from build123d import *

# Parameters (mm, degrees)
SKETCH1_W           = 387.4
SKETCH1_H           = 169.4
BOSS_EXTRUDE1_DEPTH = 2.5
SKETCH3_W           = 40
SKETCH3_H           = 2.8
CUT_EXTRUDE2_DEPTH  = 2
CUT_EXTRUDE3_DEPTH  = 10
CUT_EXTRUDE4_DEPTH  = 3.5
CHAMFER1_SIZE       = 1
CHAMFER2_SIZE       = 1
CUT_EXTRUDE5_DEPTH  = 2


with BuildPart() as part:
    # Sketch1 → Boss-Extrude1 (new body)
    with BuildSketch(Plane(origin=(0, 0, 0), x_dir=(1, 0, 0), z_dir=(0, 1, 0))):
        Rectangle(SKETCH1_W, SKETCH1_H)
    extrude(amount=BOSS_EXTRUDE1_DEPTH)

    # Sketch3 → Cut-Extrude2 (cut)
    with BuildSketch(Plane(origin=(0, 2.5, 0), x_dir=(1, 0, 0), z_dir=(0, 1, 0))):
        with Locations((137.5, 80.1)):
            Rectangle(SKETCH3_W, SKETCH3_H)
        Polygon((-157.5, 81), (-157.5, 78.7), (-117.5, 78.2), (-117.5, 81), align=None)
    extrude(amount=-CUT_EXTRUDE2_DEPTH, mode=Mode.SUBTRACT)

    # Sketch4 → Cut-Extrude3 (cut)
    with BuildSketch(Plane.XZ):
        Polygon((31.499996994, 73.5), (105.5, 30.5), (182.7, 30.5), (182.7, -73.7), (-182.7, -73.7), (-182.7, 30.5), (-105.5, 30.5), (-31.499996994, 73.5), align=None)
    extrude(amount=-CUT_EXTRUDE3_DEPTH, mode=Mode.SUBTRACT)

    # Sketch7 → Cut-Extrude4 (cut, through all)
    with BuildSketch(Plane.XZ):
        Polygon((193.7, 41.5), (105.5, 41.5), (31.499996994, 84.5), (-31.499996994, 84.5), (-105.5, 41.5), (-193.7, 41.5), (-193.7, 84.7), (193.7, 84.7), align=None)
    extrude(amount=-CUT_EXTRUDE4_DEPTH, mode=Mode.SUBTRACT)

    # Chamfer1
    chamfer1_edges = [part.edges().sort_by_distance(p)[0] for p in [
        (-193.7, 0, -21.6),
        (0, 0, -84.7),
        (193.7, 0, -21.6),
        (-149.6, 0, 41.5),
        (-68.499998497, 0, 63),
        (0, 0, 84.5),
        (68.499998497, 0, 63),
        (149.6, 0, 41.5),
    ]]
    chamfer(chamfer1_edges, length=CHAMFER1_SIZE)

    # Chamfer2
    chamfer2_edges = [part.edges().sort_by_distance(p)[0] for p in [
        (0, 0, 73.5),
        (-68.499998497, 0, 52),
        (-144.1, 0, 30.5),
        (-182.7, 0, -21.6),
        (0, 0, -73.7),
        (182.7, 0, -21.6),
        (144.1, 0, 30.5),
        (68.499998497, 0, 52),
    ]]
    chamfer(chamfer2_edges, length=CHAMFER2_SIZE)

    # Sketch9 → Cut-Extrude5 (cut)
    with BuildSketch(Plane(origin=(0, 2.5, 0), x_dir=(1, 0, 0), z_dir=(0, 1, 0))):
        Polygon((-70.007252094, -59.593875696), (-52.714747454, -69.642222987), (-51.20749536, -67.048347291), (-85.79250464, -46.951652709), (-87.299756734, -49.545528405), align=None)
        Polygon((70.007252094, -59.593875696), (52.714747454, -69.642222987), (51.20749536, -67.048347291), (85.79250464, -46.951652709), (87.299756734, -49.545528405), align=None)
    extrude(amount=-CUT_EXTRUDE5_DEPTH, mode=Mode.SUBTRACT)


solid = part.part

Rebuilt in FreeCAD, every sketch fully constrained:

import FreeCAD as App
import Part
import Sketcher
Q = App.Units.Quantity


def edges_at(feature, points):
    """Names of the edges that pass closest to the given points."""
    edges = feature.Shape.Edges
    near = lambda p: min(range(len(edges)), key=lambda i: edges[i].distToShape(Part.Vertex(*p))[0])
    return sorted({f"Edge{near(p) + 1}" for p in points})

doc = App.newDocument("Part")
body = doc.addObject("PartDesign::Body", "Body")

# Sketch on XZ plane
sketch1 = doc.addObject("Sketcher::SketchObject", "Sketch")
body.addObject(sketch1)
sketch1.AttachmentSupport = (doc.XZ_Plane, [""])
sketch1.MapMode = "FlatFace"
sketch1.addGeometry(Part.LineSegment(App.Vector(-194, -85, 0), App.Vector(-194, 85, 0)), False)
sketch1.addGeometry(Part.LineSegment(App.Vector(-194, 85, 0), App.Vector(194, 85, 0)), False)
sketch1.addGeometry(Part.LineSegment(App.Vector(194, 85, 0), App.Vector(194, -85, 0)), False)
sketch1.addGeometry(Part.LineSegment(App.Vector(194, -85, 0), App.Vector(-194, -85, 0)), False)
sketch1.addConstraint(Sketcher.Constraint("Coincident", 0, 2, 1, 1))
sketch1.addConstraint(Sketcher.Constraint("Coincident", 1, 2, 2, 1))
sketch1.addConstraint(Sketcher.Constraint("Coincident", 2, 2, 3, 1))
sketch1.addConstraint(Sketcher.Constraint("Coincident", 3, 2, 0, 1))
sketch1.addConstraint(Sketcher.Constraint("Vertical", 0))
sketch1.addConstraint(Sketcher.Constraint("Horizontal", 1))
sketch1.addConstraint(Sketcher.Constraint("Vertical", 2))
sketch1.addConstraint(Sketcher.Constraint("Horizontal", 3))
sketch1.addConstraint(Sketcher.Constraint("Symmetric", 0, 2, 2, 2, -1, 1))
sketch1.addConstraint(Sketcher.Constraint("DistanceX", 1, 1, 1, 2, Q("387.4 mm")))
sketch1.addConstraint(Sketcher.Constraint("DistanceY", 0, 1, 0, 2, Q("169.4 mm")))
pad1 = doc.addObject("PartDesign::Pad", "Pad")
body.addObject(pad1)
pad1.Profile = sketch1
pad1.Length = 2.5
pad1.Reversed = True

# Sketch on XZ plane
sketch2 = doc.addObject("Sketcher::SketchObject", "Sketch001")
body.addObject(sketch2)
sketch2.AttachmentSupport = (doc.XZ_Plane, [""])
sketch2.MapMode = "FlatFace"
sketch2.AttachmentOffset = App.Placement(App.Vector(0, 0, -2.5), App.Rotation())
sketch2.addGeometry(Part.LineSegment(App.Vector(117.5, -81.5, 0), App.Vector(117.5, -78.7, 0)), False)
sketch2.addGeometry(Part.LineSegment(App.Vector(117.5, -78.7, 0), App.Vector(157.5, -78.7, 0)), False)
sketch2.addGeometry(Part.LineSegment(App.Vector(157.5, -78.7, 0), App.Vector(157.5, -81.5, 0)), False)
sketch2.addGeometry(Part.LineSegment(App.Vector(157.5, -81.5, 0), App.Vector(117.5, -81.5, 0)), False)
sketch2.addGeometry(Part.LineSegment(App.Vector(-157.5, -81, 0), App.Vector(-157.5, -78.7, 0)), False)
sketch2.addGeometry(Part.LineSegment(App.Vector(-157.5, -78.7, 0), App.Vector(-117.5, -78.2, 0)), False)
sketch2.addGeometry(Part.LineSegment(App.Vector(-117.5, -78.2, 0), App.Vector(-117.5, -81, 0)), False)
sketch2.addGeometry(Part.LineSegment(App.Vector(-117.5, -81, 0), App.Vector(-157.5, -81, 0)), False)
sketch2.addConstraint(Sketcher.Constraint("Coincident", 0, 2, 1, 1))
sketch2.addConstraint(Sketcher.Constraint("Coincident", 1, 2, 2, 1))
sketch2.addConstraint(Sketcher.Constraint("Coincident", 2, 2, 3, 1))
sketch2.addConstraint(Sketcher.Constraint("Coincident", 3, 2, 0, 1))
sketch2.addConstraint(Sketcher.Constraint("Coincident", 4, 2, 5, 1))
sketch2.addConstraint(Sketcher.Constraint("Coincident", 5, 2, 6, 1))
sketch2.addConstraint(Sketcher.Constraint("Coincident", 6, 2, 7, 1))
sketch2.addConstraint(Sketcher.Constraint("Coincident", 7, 2, 4, 1))
sketch2.addConstraint(Sketcher.Constraint("Vertical", 0))
sketch2.addConstraint(Sketcher.Constraint("Horizontal", 1))
sketch2.addConstraint(Sketcher.Constraint("Vertical", 2))
sketch2.addConstraint(Sketcher.Constraint("Horizontal", 3))
sketch2.addConstraint(Sketcher.Constraint("Vertical", 4))
sketch2.addConstraint(Sketcher.Constraint("Vertical", 6))
sketch2.addConstraint(Sketcher.Constraint("Horizontal", 7))
sketch2.addConstraint(Sketcher.Constraint("Symmetric", 1, 2, 4, 2, -2))
sketch2.addConstraint(Sketcher.Constraint("Equal", 3, 7))
sketch2.addConstraint(Sketcher.Constraint("Equal", 2, 6))
sketch2.addConstraint(Sketcher.Constraint("DistanceX", 1, 1, 1, 2, Q("40 mm")))
sketch2.addConstraint(Sketcher.Constraint("DistanceY", 0, 1, 0, 2, Q("2.8 mm")))
sketch2.addConstraint(Sketcher.Constraint("DistanceY", 4, 1, 4, 2, Q("2.3 mm")))
sketch2.addConstraint(Sketcher.Constraint("DistanceY", 6, 2, -1, 1, Q("81 mm")))
sketch2.addConstraint(Sketcher.Constraint("DistanceX", 4, 2, 0, 2, Q("275 mm")))
pocket1 = doc.addObject("PartDesign::Pocket", "Pocket")
body.addObject(pocket1)
pocket1.Profile = sketch2
pocket1.Length = 2
pocket1.Reversed = True

# Sketch on XZ plane
sketch3 = doc.addObject("Sketcher::SketchObject", "Sketch002")
body.addObject(sketch3)
sketch3.AttachmentSupport = (doc.XZ_Plane, [""])
sketch3.MapMode = "FlatFace"
sketch3.addGeometry(Part.LineSegment(App.Vector(106, 30, 0), App.Vector(31, 74, 0)), False)
sketch3.addGeometry(Part.LineSegment(App.Vector(31, 74, 0), App.Vector(-31, 74, 0)), False)
sketch3.addGeometry(Part.LineSegment(App.Vector(-31, 74, 0), App.Vector(-106, 30, 0)), False)
sketch3.addGeometry(Part.LineSegment(App.Vector(-106, 30, 0), App.Vector(-183, 30, 0)), False)
sketch3.addGeometry(Part.LineSegment(App.Vector(-183, 30, 0), App.Vector(-183, -74, 0)), False)
sketch3.addGeometry(Part.LineSegment(App.Vector(-183, -74, 0), App.Vector(183, -74, 0)), False)
sketch3.addGeometry(Part.LineSegment(App.Vector(183, -74, 0), App.Vector(183, 30, 0)), False)
sketch3.addGeometry(Part.LineSegment(App.Vector(183, 30, 0), App.Vector(106, 30, 0)), False)
sketch3.addConstraint(Sketcher.Constraint("Coincident", 0, 2, 1, 1))
sketch3.addConstraint(Sketcher.Constraint("Coincident", 1, 2, 2, 1))
sketch3.addConstraint(Sketcher.Constraint("Coincident", 2, 2, 3, 1))
sketch3.addConstraint(Sketcher.Constraint("Coincident", 3, 2, 4, 1))
sketch3.addConstraint(Sketcher.Constraint("Coincident", 4, 2, 5, 1))
sketch3.addConstraint(Sketcher.Constraint("Coincident", 5, 2, 6, 1))
sketch3.addConstraint(Sketcher.Constraint("Coincident", 6, 2, 7, 1))
sketch3.addConstraint(Sketcher.Constraint("Coincident", 7, 2, 0, 1))
sketch3.addConstraint(Sketcher.Constraint("Horizontal", 1))
sketch3.addConstraint(Sketcher.Constraint("Horizontal", 3))
sketch3.addConstraint(Sketcher.Constraint("Vertical", 4))
sketch3.addConstraint(Sketcher.Constraint("Horizontal", 5))
sketch3.addConstraint(Sketcher.Constraint("Vertical", 6))
sketch3.addConstraint(Sketcher.Constraint("Horizontal", 7))
sketch3.addConstraint(Sketcher.Constraint("Symmetric", 3, 2, 6, 2, -2))
sketch3.addConstraint(Sketcher.Constraint("Equal", 3, 7))
sketch3.addConstraint(Sketcher.Constraint("Equal", 0, 2))
sketch3.addConstraint(Sketcher.Constraint("DistanceX", 3, 2, 3, 1, Q("77.2 mm")))
sketch3.addConstraint(Sketcher.Constraint("DistanceX", 5, 1, 5, 2, Q("365.4 mm")))
sketch3.addConstraint(Sketcher.Constraint("DistanceY", 4, 2, 4, 1, Q("104.2 mm")))
sketch3.addConstraint(Sketcher.Constraint("DistanceY", 2, 2, 1, 2, Q("43 mm")))
sketch3.addConstraint(Sketcher.Constraint("DistanceY", -1, 1, 0, 2, Q("73.5 mm")))
sketch3.addConstraint(Sketcher.Constraint("DistanceX", 1, 2, 1, 1, Q("62.999994 mm")))
pocket2 = doc.addObject("PartDesign::Pocket", "Pocket001")
body.addObject(pocket2)
pocket2.Profile = sketch3
pocket2.Length = 10

# Sketch on XZ plane
sketch4 = doc.addObject("Sketcher::SketchObject", "Sketch003")
body.addObject(sketch4)
sketch4.AttachmentSupport = (doc.XZ_Plane, [""])
sketch4.MapMode = "FlatFace"
sketch4.addGeometry(Part.LineSegment(App.Vector(106, 42, 0), App.Vector(194, 42, 0)), False)
sketch4.addGeometry(Part.LineSegment(App.Vector(194, 42, 0), App.Vector(194, 85, 0)), False)
sketch4.addGeometry(Part.LineSegment(App.Vector(194, 85, 0), App.Vector(-194, 85, 0)), False)
sketch4.addGeometry(Part.LineSegment(App.Vector(-194, 85, 0), App.Vector(-194, 42, 0)), False)
sketch4.addGeometry(Part.LineSegment(App.Vector(-194, 42, 0), App.Vector(-106, 42, 0)), False)
sketch4.addGeometry(Part.LineSegment(App.Vector(-106, 42, 0), App.Vector(-31, 84, 0)), False)
sketch4.addGeometry(Part.LineSegment(App.Vector(-31, 84, 0), App.Vector(31, 84, 0)), False)
sketch4.addGeometry(Part.LineSegment(App.Vector(31, 84, 0), App.Vector(106, 42, 0)), False)
sketch4.addConstraint(Sketcher.Constraint("Coincident", 0, 2, 1, 1))
sketch4.addConstraint(Sketcher.Constraint("Coincident", 1, 2, 2, 1))
sketch4.addConstraint(Sketcher.Constraint("Coincident", 2, 2, 3, 1))
sketch4.addConstraint(Sketcher.Constraint("Coincident", 3, 2, 4, 1))
sketch4.addConstraint(Sketcher.Constraint("Coincident", 4, 2, 5, 1))
sketch4.addConstraint(Sketcher.Constraint("Coincident", 5, 2, 6, 1))
sketch4.addConstraint(Sketcher.Constraint("Coincident", 6, 2, 7, 1))
sketch4.addConstraint(Sketcher.Constraint("Coincident", 7, 2, 0, 1))
sketch4.addConstraint(Sketcher.Constraint("Horizontal", 0))
sketch4.addConstraint(Sketcher.Constraint("Vertical", 1))
sketch4.addConstraint(Sketcher.Constraint("Horizontal", 2))
sketch4.addConstraint(Sketcher.Constraint("Vertical", 3))
sketch4.addConstraint(Sketcher.Constraint("Horizontal", 4))
sketch4.addConstraint(Sketcher.Constraint("Horizontal", 6))
sketch4.addConstraint(Sketcher.Constraint("Symmetric", 0, 2, 3, 2, -2))
sketch4.addConstraint(Sketcher.Constraint("Equal", 0, 4))
sketch4.addConstraint(Sketcher.Constraint("Equal", 5, 7))
sketch4.addConstraint(Sketcher.Constraint("DistanceX", 0, 1, 0, 2, Q("88.2 mm")))
sketch4.addConstraint(Sketcher.Constraint("DistanceX", 2, 2, 2, 1, Q("387.4 mm")))
sketch4.addConstraint(Sketcher.Constraint("DistanceY", 1, 1, 1, 2, Q("43.2 mm")))
sketch4.addConstraint(Sketcher.Constraint("DistanceY", 4, 2, 5, 2, Q("43 mm")))
sketch4.addConstraint(Sketcher.Constraint("DistanceY", -1, 1, 0, 2, Q("41.5 mm")))
sketch4.addConstraint(Sketcher.Constraint("DistanceX", 6, 1, 6, 2, Q("62.999994 mm")))
pocket3 = doc.addObject("PartDesign::Pocket", "Pocket002")
body.addObject(pocket3)
pocket3.Profile = sketch4
pocket3.Type = "ThroughAll"
doc.recompute()

chamfer = doc.addObject("PartDesign::Chamfer", "Chamfer")
body.addObject(chamfer)
chamfer.Base = (pocket3, edges_at(pocket3, [
    (-193.7, 0, -21.6),
    (0, 0, -84.7),
    (193.7, 0, -21.6),
    (-149.6, 0, 41.5),
    (-68.5, 0, 63),
    (0, 0, 84.5),
    (68.5, 0, 63),
    (149.6, 0, 41.5),
]))
chamfer.Size = 1
doc.recompute()

chamfer2 = doc.addObject("PartDesign::Chamfer", "Chamfer001")
body.addObject(chamfer2)
chamfer2.Base = (chamfer, edges_at(chamfer, [
    (0, 0, 73.5),
    (-68.5, 0, 52),
    (-144.1, 0, 30.5),
    (-182.7, 0, -21.6),
    (0, 0, -73.7),
    (182.7, 0, -21.6),
    (144.1, 0, 30.5),
    (68.5, 0, 52),
]))
chamfer2.Size = 1

# Sketch on XZ plane
sketch5 = doc.addObject("Sketcher::SketchObject", "Sketch004")
body.addObject(sketch5)
sketch5.AttachmentSupport = (doc.XZ_Plane, [""])
sketch5.MapMode = "FlatFace"
sketch5.AttachmentOffset = App.Placement(App.Vector(0, 0, -2.5), App.Rotation())
sketch5.addGeometry(Part.LineSegment(App.Vector(-52.7, 69.6, 0), App.Vector(-51.2, 67, 0)), False)
sketch5.addGeometry(Part.LineSegment(App.Vector(-51.2, 67, 0), App.Vector(-85.8, 47, 0)), False)
sketch5.addGeometry(Part.LineSegment(App.Vector(-85.8, 47, 0), App.Vector(-87.3, 49.5, 0)), False)
sketch5.addGeometry(Part.LineSegment(App.Vector(-87.3, 49.5, 0), App.Vector(-52.7, 69.6, 0)), False)
sketch5.addGeometry(Part.LineSegment(App.Vector(52.7, 69.6, 0), App.Vector(87.3, 49.5, 0)), False)
sketch5.addGeometry(Part.LineSegment(App.Vector(87.3, 49.5, 0), App.Vector(85.8, 47, 0)), False)
sketch5.addGeometry(Part.LineSegment(App.Vector(85.8, 47, 0), App.Vector(51.2, 67, 0)), False)
sketch5.addGeometry(Part.LineSegment(App.Vector(51.2, 67, 0), App.Vector(52.7, 69.6, 0)), False)
sketch5.addConstraint(Sketcher.Constraint("Coincident", 0, 2, 1, 1))
sketch5.addConstraint(Sketcher.Constraint("Coincident", 1, 2, 2, 1))
sketch5.addConstraint(Sketcher.Constraint("Coincident", 2, 2, 3, 1))
sketch5.addConstraint(Sketcher.Constraint("Coincident", 3, 2, 0, 1))
sketch5.addConstraint(Sketcher.Constraint("Coincident", 4, 2, 5, 1))
sketch5.addConstraint(Sketcher.Constraint("Coincident", 5, 2, 6, 1))
sketch5.addConstraint(Sketcher.Constraint("Coincident", 6, 2, 7, 1))
sketch5.addConstraint(Sketcher.Constraint("Coincident", 7, 2, 4, 1))
sketch5.addConstraint(Sketcher.Constraint("Symmetric", 2, 2, 4, 2, -2))
sketch5.addConstraint(Sketcher.Constraint("Symmetric", 1, 2, 5, 2, -2))
sketch5.addConstraint(Sketcher.Constraint("Symmetric", 0, 2, 6, 2, -2))
sketch5.addConstraint(Sketcher.Constraint("Symmetric", 3, 2, 7, 2, -2))
sketch5.addConstraint(Sketcher.Constraint("Perpendicular", 0, 1))
sketch5.addConstraint(Sketcher.Constraint("Perpendicular", 1, 2))
sketch5.addConstraint(Sketcher.Constraint("Perpendicular", 2, 3))
sketch5.addConstraint(Sketcher.Constraint("Distance", 0, Q("3 mm")))
sketch5.addConstraint(Sketcher.Constraint("Distance", 1, Q("40 mm")))
sketch5.addConstraint(Sketcher.Constraint("DistanceX", 0, 2, 5, 2, Q("137 mm")))
sketch5.addConstraint(Sketcher.Constraint("DistanceY", -1, 1, 2, 2, Q("49.545528 mm")))
sketch5.addConstraint(Sketcher.Constraint("DistanceX", 1, 2, 0, 2, Q("34.585009 mm")))
pocket4 = doc.addObject("PartDesign::Pocket", "Pocket003")
body.addObject(pocket4)
pocket4.Profile = sketch5
pocket4.Length = 2
pocket4.Reversed = True

doc.recompute()
